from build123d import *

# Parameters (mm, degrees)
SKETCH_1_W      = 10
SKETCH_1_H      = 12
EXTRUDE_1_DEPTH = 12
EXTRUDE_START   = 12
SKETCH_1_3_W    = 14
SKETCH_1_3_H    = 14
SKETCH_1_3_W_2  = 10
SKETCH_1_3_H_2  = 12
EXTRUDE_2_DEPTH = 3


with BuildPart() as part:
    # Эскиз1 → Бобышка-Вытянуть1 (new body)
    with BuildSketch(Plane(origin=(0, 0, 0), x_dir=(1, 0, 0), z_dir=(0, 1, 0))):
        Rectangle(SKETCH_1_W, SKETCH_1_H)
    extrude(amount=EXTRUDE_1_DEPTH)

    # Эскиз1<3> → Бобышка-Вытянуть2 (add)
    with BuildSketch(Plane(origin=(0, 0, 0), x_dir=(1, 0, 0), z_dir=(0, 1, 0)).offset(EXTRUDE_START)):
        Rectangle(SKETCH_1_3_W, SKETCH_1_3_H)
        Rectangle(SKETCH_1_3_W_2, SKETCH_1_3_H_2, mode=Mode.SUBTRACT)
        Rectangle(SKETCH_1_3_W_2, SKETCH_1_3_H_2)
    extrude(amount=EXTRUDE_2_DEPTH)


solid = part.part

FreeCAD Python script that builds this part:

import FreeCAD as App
import Part
import Sketcher

doc = App.newDocument("Part")
body = doc.addObject("PartDesign::Body", "Body")

sketch1 = body.newObject("Sketcher::SketchObject", "Sketch")
sketch1.AttachmentSupport = (doc.getObject("XZ_Plane"), [""])
sketch1.MapMode = "FlatFace"
sketch1.addGeometry([
    Part.LineSegment(App.Vector(-5, -6, 0), App.Vector(-5, 6, 0)),
    Part.LineSegment(App.Vector(-5, 6, 0), App.Vector(5, 6, 0)),
    Part.LineSegment(App.Vector(5, 6, 0), App.Vector(5, -6, 0)),
    Part.LineSegment(App.Vector(5, -6, 0), App.Vector(-5, -6, 0)),
], False)
sketch1.addConstraint([
    Sketcher.Constraint("Coincident", 0, 2, 1, 1),
    Sketcher.Constraint("Coincident", 1, 2, 2, 1),
    Sketcher.Constraint("Coincident", 2, 2, 3, 1),
    Sketcher.Constraint("Coincident", 3, 2, 0, 1),
    Sketcher.Constraint("Vertical", 0),
    Sketcher.Constraint("Horizontal", 1),
    Sketcher.Constraint("Vertical", 2),
    Sketcher.Constraint("Horizontal", 3),
    Sketcher.Constraint("Symmetric", 0, 2, 2, 2, -1, 1),
    Sketcher.Constraint("DistanceX", 1, 1, 1, 2, 10.0),
    Sketcher.Constraint("DistanceY", 0, 1, 0, 2, 12.0),
])
pad1 = body.newObject("PartDesign::Pad", "Pad")
pad1.Profile = sketch1
pad1.Length = 12
pad1.Reversed = True

sketch2 = body.newObject("Sketcher::SketchObject", "Sketch001")
sketch2.AttachmentSupport = (doc.getObject("XZ_Plane"), [""])
sketch2.MapMode = "FlatFace"
sketch2.AttachmentOffset = App.Placement(App.Vector(0, 0, -12), App.Rotation())
sketch2.addGeometry([
    Part.LineSegment(App.Vector(-7, -7, 0), App.Vector(-7, 7, 0)),
    Part.LineSegment(App.Vector(-7, 7, 0), App.Vector(7, 7, 0)),
    Part.LineSegment(App.Vector(7, 7, 0), App.Vector(7, -7, 0)),
    Part.LineSegment(App.Vector(7, -7, 0), App.Vector(-7, -7, 0)),
], False)
sketch2.addConstraint([
    Sketcher.Constraint("Coincident", 0, 2, 1, 1),
    Sketcher.Constraint("Coincident", 1, 2, 2, 1),
    Sketcher.Constraint("Coincident", 2, 2, 3, 1),
    Sketcher.Constraint("Coincident", 3, 2, 0, 1),
    Sketcher.Constraint("Vertical", 0),
    Sketcher.Constraint("Horizontal", 1),
    Sketcher.Constraint("Vertical", 2),
    Sketcher.Constraint("Horizontal", 3),
    Sketcher.Constraint("Symmetric", 0, 2, 2, 2, -1, 1),
    Sketcher.Constraint("Equal", 3, 0),
    Sketcher.Constraint("DistanceX", 1, 1, 1, 2, 14.0),
])
pad2 = body.newObject("PartDesign::Pad", "Pad001")
pad2.Profile = sketch2
pad2.Length = 3
pad2.Reversed = True

doc.recompute()
